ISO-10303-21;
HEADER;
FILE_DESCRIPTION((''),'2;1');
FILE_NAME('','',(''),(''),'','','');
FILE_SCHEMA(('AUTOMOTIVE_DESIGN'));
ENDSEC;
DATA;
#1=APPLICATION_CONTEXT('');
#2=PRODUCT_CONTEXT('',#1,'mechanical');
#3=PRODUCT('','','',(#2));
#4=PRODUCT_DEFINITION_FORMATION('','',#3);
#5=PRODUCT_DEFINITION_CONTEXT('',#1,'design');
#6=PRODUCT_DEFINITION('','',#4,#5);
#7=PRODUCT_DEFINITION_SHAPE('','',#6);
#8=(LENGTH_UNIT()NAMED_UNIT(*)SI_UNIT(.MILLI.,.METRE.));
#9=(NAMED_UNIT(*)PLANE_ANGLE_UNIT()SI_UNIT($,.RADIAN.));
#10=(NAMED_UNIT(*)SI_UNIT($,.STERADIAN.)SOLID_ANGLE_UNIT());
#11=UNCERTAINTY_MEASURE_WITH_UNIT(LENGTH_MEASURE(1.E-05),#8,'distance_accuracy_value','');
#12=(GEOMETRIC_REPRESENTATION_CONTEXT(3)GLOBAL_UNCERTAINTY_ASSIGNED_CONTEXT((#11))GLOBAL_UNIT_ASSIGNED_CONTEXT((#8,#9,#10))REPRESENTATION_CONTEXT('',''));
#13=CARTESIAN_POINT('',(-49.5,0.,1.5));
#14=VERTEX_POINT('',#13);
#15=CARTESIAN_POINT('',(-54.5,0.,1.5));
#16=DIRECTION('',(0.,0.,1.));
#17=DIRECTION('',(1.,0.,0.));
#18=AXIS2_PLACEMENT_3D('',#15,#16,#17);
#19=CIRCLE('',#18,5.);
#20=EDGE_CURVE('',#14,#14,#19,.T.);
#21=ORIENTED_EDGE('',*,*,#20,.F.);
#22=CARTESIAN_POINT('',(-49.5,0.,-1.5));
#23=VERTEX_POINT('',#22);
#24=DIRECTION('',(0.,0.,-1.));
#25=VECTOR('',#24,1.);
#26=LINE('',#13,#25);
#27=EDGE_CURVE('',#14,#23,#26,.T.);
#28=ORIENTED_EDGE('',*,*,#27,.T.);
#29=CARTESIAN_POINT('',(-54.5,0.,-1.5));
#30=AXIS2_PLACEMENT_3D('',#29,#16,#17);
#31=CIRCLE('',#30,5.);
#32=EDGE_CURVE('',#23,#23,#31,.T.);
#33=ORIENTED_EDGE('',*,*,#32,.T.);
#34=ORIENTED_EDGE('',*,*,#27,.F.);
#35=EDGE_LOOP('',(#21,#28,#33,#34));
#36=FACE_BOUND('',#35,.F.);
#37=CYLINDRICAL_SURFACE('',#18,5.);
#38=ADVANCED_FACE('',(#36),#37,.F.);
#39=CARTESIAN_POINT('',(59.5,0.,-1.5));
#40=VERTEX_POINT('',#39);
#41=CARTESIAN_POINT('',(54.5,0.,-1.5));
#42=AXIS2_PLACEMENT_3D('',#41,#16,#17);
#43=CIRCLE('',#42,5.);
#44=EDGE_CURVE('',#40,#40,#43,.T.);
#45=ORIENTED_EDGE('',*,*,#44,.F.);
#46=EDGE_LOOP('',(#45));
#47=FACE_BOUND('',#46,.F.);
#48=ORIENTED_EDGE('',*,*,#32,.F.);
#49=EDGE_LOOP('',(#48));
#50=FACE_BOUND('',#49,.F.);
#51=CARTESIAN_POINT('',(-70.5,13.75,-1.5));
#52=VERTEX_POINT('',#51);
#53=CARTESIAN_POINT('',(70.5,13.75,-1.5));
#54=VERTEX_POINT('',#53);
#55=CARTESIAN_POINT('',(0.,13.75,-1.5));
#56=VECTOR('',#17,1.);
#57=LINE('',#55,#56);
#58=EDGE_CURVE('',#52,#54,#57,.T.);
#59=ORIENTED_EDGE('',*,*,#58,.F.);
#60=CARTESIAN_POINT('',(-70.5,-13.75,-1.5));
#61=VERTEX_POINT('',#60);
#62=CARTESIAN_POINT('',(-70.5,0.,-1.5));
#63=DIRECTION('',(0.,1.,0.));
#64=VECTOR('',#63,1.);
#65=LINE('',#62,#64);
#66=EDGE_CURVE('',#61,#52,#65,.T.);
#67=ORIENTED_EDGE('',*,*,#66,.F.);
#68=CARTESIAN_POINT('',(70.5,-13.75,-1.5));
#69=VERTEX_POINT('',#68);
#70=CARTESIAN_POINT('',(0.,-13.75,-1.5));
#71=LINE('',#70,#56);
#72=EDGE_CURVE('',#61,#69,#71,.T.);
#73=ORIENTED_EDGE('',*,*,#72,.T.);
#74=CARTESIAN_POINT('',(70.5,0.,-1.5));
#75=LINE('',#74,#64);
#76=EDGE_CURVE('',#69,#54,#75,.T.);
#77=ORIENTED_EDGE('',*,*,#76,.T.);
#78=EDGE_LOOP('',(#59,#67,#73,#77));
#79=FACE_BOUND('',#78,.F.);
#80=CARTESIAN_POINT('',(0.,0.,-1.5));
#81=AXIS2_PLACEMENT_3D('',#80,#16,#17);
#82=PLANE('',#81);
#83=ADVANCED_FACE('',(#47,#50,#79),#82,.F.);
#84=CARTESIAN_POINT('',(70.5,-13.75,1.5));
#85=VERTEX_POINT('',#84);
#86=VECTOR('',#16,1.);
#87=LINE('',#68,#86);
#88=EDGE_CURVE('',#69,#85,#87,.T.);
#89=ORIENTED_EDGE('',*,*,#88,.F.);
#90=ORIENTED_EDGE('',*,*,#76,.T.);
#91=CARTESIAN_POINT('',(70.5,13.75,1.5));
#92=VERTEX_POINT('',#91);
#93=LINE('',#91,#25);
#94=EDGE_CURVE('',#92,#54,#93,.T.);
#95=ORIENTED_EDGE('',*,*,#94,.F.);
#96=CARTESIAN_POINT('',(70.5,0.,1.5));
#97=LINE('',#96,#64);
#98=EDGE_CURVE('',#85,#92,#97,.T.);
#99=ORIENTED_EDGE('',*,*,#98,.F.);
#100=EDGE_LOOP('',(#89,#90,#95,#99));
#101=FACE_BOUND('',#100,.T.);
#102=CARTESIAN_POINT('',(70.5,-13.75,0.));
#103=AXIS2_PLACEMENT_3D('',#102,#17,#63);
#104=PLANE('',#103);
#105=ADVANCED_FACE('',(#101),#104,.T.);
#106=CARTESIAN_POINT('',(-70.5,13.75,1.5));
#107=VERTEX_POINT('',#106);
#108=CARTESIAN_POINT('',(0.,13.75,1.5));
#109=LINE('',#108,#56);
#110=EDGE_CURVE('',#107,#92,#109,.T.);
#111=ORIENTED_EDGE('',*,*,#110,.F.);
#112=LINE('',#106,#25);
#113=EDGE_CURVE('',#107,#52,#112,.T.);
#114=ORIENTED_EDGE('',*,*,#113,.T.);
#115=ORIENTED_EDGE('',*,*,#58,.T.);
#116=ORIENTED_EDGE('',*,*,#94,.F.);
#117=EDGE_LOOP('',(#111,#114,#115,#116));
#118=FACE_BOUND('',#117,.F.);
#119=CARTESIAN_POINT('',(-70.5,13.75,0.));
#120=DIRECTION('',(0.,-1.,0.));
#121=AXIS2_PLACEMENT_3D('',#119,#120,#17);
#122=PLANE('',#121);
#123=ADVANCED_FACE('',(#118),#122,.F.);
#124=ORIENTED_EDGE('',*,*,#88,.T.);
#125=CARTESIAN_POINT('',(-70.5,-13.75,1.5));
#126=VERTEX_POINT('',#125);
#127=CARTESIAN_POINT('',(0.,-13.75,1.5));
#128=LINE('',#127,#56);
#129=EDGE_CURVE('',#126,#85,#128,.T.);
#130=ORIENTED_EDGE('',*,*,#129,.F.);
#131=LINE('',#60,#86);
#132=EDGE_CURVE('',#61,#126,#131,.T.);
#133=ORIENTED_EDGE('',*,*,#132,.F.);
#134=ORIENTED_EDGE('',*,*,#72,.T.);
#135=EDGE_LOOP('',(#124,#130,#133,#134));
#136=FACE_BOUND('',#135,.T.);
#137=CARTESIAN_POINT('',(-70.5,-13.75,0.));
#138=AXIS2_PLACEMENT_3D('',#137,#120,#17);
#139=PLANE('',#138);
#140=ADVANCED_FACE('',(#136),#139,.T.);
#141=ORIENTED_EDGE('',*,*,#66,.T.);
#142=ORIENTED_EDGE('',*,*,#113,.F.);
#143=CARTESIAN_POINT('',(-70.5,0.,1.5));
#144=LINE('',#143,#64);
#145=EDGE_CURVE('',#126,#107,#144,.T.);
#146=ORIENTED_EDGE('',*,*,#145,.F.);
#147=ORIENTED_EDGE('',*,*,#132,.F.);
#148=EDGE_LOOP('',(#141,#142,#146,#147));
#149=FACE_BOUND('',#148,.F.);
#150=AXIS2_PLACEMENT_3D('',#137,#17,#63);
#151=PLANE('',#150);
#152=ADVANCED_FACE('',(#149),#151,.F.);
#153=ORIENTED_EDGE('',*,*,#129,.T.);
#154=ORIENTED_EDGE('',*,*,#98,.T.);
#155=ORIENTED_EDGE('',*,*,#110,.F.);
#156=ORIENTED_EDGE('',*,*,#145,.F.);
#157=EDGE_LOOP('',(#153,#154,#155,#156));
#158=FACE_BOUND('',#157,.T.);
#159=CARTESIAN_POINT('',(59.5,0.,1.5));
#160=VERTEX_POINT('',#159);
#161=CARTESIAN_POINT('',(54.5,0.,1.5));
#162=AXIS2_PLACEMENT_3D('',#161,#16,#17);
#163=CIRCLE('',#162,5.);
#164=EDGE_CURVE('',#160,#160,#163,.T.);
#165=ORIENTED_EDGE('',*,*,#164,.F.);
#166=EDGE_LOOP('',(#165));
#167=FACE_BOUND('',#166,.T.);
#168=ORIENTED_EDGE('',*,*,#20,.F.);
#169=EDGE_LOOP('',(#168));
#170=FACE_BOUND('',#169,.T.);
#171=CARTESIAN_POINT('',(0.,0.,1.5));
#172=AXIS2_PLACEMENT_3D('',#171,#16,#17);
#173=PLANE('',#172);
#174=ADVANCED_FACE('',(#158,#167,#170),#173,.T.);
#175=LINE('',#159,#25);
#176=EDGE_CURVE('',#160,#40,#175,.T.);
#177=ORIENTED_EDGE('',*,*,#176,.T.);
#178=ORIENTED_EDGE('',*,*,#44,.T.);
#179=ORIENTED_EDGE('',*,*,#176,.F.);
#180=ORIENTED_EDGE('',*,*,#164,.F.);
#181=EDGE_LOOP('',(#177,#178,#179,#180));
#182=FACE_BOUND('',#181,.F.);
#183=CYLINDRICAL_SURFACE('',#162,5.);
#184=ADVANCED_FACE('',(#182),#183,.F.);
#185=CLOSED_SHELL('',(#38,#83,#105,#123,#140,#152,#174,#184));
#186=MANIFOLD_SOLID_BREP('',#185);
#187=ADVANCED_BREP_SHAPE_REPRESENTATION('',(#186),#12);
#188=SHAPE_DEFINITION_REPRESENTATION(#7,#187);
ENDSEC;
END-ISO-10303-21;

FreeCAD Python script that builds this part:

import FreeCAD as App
import Part
import Sketcher

V = App.Vector
Q = App.Units.Quantity


def add_polygon(sketch, points):
    """Adds a closed chain of lines whose ends are joined by coincident constraints."""
    first, n = sketch.GeometryCount, len(points)
    for a, b in zip(points, points[1:] + points[:1]):
        sketch.addGeometry(Part.LineSegment(App.Vector(*a, 0), App.Vector(*b, 0)), False)
    for i in range(n):
        sketch.addConstraint(Sketcher.Constraint("Coincident", first + i, 2, first + (i + 1) % n, 1))

doc = App.newDocument("Part")
body = doc.addObject("PartDesign::Body", "Body")

# Sketch on XY plane
sketch1 = doc.addObject("Sketcher::SketchObject", "Sketch")
body.addObject(sketch1)
sketch1.AttachmentSupport = (doc.XY_Plane, [""])
sketch1.MapMode = "FlatFace"
add_polygon(sketch1, [(-70, 14), (-70, -14), (70, -14), (70, 14)])  # lines 0-3
sketch1.addConstraint([
    Sketcher.Constraint("Vertical", 0),
    Sketcher.Constraint("Horizontal", 1),
    Sketcher.Constraint("Vertical", 2),
    Sketcher.Constraint("Horizontal", 3),
    Sketcher.Constraint("Symmetric", 0, 2, 2, 2, -1, 1),
    Sketcher.Constraint("DistanceX", 1, 1, 1, 2, Q("141 mm")),
    Sketcher.Constraint("DistanceY", 0, 2, 0, 1, Q("27.5 mm")),
])
pad1 = doc.addObject("PartDesign::Pad", "Pad")
body.addObject(pad1)
pad1.Profile = sketch1
pad1.Length = 3
pad1.Midplane = True

# Sketch on XY plane
sketch2 = doc.addObject("Sketcher::SketchObject", "Sketch001")
body.addObject(sketch2)
sketch2.AttachmentSupport = (doc.XY_Plane, [""])
sketch2.MapMode = "FlatFace"
sketch2.AttachmentOffset = App.Placement(V(0, 0, 1.5), App.Rotation())
sketch2.addGeometry([
    Part.Circle(V(54, 0, 0), V(0, 0, 1), 5),
    Part.Circle(V(-54, 0, 0), V(0, 0, 1), 5),
], False)
sketch2.addConstraint([
    Sketcher.Constraint("Equal", 0, 1),
    Sketcher.Constraint("Symmetric", 0, 3, 1, 3, -1, 1),
    Sketcher.Constraint("PointOnObject", 0, 3, -1),
    Sketcher.Constraint("Diameter", 0, Q("10 mm")),
    Sketcher.Constraint("DistanceX", 1, 3, 0, 3, Q("109 mm")),
])
pocket1 = doc.addObject("PartDesign::Pocket", "Pocket")
body.addObject(pocket1)
pocket1.Profile = sketch2
pocket1.Type = "ThroughAll"

doc.recompute()
